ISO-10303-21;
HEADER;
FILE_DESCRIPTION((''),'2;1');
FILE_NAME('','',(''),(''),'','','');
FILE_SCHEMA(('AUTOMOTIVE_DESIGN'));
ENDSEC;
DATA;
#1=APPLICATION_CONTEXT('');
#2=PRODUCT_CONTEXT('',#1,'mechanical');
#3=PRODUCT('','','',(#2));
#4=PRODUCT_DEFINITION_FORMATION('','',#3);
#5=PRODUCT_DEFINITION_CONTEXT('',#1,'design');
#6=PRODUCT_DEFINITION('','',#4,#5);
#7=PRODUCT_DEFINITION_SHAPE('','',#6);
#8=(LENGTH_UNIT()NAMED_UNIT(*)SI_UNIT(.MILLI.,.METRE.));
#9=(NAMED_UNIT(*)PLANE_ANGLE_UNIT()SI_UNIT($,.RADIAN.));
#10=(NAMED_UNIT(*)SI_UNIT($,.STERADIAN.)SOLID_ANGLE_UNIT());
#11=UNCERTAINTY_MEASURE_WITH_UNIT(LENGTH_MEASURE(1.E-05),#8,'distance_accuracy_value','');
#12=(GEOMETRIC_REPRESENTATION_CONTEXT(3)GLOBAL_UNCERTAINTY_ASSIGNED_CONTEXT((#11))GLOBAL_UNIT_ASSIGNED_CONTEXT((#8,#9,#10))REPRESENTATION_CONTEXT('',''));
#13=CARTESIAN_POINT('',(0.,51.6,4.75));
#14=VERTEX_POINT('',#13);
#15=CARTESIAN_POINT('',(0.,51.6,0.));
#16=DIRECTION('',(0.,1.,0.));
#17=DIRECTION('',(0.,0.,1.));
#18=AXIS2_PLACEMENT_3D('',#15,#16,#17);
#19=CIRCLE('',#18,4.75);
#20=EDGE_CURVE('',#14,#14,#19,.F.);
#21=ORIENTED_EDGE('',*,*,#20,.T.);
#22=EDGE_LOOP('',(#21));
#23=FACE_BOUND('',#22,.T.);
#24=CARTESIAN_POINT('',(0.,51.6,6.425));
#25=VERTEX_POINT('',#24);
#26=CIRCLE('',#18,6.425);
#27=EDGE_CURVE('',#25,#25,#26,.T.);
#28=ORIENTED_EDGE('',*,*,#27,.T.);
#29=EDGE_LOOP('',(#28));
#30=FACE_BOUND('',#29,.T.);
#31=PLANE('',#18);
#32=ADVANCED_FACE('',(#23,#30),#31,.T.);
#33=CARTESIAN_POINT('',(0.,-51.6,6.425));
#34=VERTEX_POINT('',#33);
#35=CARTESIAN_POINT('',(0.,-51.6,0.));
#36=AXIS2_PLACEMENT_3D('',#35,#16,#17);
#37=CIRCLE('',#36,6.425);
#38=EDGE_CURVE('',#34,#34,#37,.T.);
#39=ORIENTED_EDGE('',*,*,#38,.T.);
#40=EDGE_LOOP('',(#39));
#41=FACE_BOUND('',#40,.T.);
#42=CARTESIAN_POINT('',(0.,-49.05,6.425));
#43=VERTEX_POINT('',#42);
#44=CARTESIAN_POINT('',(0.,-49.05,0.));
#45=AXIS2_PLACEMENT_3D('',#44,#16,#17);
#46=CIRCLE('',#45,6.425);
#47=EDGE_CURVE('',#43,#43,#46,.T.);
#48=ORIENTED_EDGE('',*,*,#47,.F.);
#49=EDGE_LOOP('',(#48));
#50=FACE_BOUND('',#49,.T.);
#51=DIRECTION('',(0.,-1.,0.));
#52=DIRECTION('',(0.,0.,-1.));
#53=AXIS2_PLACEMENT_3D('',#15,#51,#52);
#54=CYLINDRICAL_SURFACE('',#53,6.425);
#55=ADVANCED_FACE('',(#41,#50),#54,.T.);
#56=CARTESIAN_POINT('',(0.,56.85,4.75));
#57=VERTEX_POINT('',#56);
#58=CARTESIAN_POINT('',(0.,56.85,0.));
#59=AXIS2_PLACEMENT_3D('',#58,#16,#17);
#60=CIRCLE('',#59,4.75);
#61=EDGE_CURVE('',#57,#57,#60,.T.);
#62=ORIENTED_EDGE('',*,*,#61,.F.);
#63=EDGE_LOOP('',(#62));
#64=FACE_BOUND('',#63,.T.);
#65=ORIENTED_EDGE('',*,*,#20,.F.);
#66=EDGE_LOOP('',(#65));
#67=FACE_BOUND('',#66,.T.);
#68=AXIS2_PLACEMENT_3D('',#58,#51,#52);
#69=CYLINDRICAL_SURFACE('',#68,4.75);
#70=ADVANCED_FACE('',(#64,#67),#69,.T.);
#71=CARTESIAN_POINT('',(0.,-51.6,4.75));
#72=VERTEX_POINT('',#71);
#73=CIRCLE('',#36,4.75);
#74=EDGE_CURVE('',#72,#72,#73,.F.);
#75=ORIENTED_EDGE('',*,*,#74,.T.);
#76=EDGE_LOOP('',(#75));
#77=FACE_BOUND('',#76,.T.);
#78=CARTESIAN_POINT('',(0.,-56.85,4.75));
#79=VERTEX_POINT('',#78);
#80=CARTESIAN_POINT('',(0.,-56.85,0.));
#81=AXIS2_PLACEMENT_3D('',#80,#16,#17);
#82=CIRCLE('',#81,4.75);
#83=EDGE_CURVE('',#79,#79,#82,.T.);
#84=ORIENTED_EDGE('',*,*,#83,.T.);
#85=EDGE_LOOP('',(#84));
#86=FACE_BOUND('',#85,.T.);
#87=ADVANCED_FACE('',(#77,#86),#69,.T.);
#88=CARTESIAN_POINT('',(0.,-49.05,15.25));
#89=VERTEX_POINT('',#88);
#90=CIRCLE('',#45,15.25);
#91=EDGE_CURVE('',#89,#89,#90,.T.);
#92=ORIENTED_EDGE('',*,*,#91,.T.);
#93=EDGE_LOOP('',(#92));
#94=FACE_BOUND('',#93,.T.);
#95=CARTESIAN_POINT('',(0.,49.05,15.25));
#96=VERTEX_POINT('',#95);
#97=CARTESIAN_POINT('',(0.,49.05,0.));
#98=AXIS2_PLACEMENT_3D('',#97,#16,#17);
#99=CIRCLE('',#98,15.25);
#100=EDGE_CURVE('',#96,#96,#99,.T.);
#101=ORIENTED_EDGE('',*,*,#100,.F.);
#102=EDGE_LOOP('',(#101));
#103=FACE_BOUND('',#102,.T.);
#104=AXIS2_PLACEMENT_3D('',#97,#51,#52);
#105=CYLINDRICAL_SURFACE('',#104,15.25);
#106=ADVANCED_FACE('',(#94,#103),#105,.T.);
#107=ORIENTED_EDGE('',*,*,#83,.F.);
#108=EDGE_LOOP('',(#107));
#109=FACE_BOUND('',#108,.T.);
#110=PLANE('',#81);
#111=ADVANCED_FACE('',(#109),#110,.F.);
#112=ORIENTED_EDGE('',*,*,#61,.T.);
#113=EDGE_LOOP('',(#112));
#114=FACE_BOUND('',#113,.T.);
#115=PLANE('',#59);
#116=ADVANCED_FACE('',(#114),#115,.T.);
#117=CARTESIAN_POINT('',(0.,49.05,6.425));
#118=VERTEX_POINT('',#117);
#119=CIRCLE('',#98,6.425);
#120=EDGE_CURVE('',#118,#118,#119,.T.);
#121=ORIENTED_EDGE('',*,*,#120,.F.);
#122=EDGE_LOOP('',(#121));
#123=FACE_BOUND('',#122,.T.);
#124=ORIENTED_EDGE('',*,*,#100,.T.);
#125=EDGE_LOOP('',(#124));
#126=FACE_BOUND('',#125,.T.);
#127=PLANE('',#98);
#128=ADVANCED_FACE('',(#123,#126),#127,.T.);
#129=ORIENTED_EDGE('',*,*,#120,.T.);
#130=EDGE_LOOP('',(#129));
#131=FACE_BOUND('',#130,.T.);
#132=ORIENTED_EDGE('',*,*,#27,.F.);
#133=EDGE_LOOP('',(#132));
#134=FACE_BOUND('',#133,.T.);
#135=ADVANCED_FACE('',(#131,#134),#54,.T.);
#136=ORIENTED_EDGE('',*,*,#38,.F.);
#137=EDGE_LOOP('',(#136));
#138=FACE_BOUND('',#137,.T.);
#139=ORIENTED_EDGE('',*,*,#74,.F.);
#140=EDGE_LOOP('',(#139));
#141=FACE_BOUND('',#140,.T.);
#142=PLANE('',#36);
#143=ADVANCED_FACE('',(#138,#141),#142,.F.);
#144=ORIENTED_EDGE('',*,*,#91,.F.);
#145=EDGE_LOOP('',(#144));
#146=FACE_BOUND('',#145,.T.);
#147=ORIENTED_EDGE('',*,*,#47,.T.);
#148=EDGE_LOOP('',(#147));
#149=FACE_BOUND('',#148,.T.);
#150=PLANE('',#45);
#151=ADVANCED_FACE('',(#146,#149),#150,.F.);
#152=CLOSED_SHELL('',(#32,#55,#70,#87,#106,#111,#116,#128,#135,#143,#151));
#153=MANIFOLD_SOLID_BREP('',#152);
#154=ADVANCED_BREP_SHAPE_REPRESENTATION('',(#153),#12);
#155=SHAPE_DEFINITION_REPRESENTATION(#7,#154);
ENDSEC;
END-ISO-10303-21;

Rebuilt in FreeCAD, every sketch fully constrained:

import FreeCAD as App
import Part
import Sketcher

V = App.Vector

doc = App.newDocument("Part")
body = doc.addObject("PartDesign::Body", "Body")

# Sketch on XZ plane
sketch1 = doc.addObject("Sketcher::SketchObject", "Sketch")
body.addObject(sketch1)
sketch1.AttachmentSupport = (doc.XZ_Plane, [""])
sketch1.MapMode = "FlatFace"
sketch1.addGeometry(Part.Circle(V(0, 0, 0), V(0, 0, 1), 6), False)
sketch1.addConstraint(Sketcher.Constraint("Coincident", 0, 3, -1, 1))
sketch1.addConstraint(Sketcher.Constraint("Diameter", 0, 12.85))
pad1 = doc.addObject("PartDesign::Pad", "Pad")
body.addObject(pad1)
pad1.Profile = sketch1
pad1.Length = 103.2
pad1.Midplane = True

# Sketch on XZ plane
sketch2 = doc.addObject("Sketcher::SketchObject", "Sketch001")
body.addObject(sketch2)
sketch2.AttachmentSupport = (doc.XZ_Plane, [""])
sketch2.MapMode = "FlatFace"
sketch2.addGeometry(Part.Circle(V(0, 0, 0), V(0, 0, 1), 4.8), False)
sketch2.addConstraint(Sketcher.Constraint("Coincident", 0, 3, -1, 1))
sketch2.addConstraint(Sketcher.Constraint("Diameter", 0, 9.5))
pad2 = doc.addObject("PartDesign::Pad", "Pad001")
body.addObject(pad2)
pad2.Profile = sketch2
pad2.Length = 113.7
pad2.Midplane = True

# Sketch on XZ plane
sketch3 = doc.addObject("Sketcher::SketchObject", "Sketch002")
body.addObject(sketch3)
sketch3.AttachmentSupport = (doc.XZ_Plane, [""])
sketch3.MapMode = "FlatFace"
sketch3.addGeometry(Part.Circle(V(0, 0, 0), V(0, 0, 1), 15), False)
sketch3.addGeometry(Part.Circle(V(0, 0, 0), V(0, 0, 1), 6), False)
sketch3.addConstraint(Sketcher.Constraint("Coincident", 0, 3, -1, 1))
sketch3.addConstraint(Sketcher.Constraint("Coincident", 1, 3, -1, 1))
sketch3.addConstraint(Sketcher.Constraint("Diameter", 0, 30.5))
sketch3.addConstraint(Sketcher.Constraint("Diameter", 1, 12.85))
pad3 = doc.addObject("PartDesign::Pad", "Pad002")
body.addObject(pad3)
pad3.Profile = sketch3
pad3.Length = 98.1
pad3.Midplane = True

doc.recompute()
